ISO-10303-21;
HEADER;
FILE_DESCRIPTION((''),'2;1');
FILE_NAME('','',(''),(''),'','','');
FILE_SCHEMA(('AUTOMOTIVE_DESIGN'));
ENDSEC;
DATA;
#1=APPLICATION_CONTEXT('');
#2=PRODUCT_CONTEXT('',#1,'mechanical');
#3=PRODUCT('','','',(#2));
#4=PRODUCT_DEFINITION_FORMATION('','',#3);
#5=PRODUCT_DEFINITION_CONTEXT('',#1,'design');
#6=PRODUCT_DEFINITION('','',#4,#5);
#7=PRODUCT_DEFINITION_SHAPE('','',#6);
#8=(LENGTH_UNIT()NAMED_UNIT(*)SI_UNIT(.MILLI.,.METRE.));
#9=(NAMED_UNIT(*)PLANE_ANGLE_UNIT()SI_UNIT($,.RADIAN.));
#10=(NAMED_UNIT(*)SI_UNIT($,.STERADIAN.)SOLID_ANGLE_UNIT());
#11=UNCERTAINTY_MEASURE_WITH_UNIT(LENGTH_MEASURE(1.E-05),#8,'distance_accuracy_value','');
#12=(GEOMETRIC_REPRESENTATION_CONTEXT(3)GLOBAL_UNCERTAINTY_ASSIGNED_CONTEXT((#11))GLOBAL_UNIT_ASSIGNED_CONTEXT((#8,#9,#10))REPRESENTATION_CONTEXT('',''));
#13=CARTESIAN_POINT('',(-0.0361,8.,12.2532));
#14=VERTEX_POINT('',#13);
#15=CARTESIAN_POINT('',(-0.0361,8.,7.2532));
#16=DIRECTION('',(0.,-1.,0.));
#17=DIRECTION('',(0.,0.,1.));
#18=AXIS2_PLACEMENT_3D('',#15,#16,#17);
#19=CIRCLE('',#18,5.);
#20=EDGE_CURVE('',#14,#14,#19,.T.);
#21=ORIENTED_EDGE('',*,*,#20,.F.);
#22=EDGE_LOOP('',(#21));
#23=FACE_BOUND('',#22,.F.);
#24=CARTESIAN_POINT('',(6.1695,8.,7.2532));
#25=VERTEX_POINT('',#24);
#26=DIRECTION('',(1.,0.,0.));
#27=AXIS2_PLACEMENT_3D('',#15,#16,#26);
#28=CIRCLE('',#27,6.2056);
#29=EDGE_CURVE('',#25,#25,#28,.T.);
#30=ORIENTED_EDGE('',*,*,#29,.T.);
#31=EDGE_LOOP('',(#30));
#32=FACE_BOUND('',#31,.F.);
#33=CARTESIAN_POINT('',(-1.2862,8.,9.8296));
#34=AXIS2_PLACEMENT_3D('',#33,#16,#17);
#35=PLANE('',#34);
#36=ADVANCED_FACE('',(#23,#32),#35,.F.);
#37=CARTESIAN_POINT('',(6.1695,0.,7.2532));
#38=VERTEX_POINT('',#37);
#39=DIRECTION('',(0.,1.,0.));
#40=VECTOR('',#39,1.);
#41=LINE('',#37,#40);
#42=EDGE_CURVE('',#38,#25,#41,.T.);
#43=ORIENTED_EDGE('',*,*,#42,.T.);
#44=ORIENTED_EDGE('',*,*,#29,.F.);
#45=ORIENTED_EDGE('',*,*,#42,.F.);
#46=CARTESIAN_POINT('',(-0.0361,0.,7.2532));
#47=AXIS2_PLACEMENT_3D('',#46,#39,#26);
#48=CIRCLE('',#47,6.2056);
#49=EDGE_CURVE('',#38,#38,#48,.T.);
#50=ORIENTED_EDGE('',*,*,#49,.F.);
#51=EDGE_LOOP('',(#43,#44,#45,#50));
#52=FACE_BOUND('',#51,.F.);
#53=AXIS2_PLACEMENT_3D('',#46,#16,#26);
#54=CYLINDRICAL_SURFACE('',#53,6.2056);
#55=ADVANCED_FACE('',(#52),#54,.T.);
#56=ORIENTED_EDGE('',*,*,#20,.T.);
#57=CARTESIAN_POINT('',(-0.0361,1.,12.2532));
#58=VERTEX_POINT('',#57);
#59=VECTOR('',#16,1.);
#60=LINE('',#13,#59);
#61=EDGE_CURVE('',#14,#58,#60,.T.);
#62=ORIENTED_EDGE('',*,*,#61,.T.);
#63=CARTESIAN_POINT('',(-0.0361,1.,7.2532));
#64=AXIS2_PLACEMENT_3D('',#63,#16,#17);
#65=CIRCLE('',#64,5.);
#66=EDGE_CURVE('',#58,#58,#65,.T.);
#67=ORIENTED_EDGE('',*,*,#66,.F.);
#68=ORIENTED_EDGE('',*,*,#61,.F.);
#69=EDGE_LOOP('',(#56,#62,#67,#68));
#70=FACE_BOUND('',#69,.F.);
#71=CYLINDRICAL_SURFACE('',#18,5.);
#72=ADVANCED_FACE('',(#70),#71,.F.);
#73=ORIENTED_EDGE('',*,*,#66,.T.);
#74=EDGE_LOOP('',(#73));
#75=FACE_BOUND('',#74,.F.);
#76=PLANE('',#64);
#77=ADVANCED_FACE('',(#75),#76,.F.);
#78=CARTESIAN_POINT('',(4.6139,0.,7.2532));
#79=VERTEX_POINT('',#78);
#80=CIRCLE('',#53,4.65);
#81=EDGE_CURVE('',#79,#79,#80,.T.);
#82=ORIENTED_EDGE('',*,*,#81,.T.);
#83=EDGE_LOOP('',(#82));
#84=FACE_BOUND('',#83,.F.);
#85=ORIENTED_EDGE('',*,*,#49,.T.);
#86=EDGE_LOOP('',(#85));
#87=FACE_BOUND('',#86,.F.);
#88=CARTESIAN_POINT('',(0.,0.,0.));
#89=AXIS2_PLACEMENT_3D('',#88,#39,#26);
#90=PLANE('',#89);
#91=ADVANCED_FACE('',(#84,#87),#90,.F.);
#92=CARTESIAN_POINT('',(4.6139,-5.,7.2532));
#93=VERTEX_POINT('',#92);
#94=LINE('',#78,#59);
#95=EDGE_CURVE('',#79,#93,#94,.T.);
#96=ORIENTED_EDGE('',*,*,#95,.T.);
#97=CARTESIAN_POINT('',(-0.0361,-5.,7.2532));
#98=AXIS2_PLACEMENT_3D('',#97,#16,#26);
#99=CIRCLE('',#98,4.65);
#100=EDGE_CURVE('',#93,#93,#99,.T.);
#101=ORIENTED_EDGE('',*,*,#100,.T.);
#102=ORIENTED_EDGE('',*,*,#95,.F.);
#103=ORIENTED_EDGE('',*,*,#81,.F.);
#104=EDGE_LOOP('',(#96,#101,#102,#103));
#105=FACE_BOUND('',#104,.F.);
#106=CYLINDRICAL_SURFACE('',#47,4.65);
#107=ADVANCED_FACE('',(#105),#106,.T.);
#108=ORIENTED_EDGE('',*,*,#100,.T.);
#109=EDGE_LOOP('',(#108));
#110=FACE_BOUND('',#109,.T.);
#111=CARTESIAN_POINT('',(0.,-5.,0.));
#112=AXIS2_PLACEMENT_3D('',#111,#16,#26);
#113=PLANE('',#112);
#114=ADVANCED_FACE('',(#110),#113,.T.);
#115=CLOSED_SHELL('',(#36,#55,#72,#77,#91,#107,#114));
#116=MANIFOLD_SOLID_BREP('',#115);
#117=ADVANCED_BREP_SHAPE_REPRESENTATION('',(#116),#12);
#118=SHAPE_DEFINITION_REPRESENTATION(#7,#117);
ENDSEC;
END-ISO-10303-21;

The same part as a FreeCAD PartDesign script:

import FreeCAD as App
import Part
import Sketcher

V = App.Vector

doc = App.newDocument("Part")
body = doc.addObject("PartDesign::Body", "Body")

# Sketch on XZ plane
sketch1 = body.newObject("Sketcher::SketchObject", "Sketch")
sketch1.AttachmentSupport = (doc.getObject("XZ_Plane"), [""])
sketch1.MapMode = "FlatFace"
sketch1.addGeometry(Part.Circle(V(-0.0361, 7.2532, 0), V(0, 0, 1), 6.2056), False)
sketch1.addConstraint([
    Sketcher.Constraint("Diameter", 0, 12.4112),
    Sketcher.Constraint("DistanceX", 0, 3, -1, 1, 0.036),
    Sketcher.Constraint("DistanceY", -1, 1, 0, 3, 7.2532),
])
pad1 = body.newObject("PartDesign::Pad", "Pad")
pad1.Profile = sketch1
pad1.Length = 11
pad1.Reversed = True

# Sketch on XZ plane
sketch2 = body.newObject("Sketcher::SketchObject", "Sketch001")
sketch2.AttachmentSupport = (doc.getObject("XZ_Plane"), [""])
sketch2.MapMode = "FlatFace"
sketch2.AttachmentOffset = App.Placement(V(0, 0, -11), App.Rotation())
sketch2.addGeometry(Part.Circle(V(-1.2862, 9.8296, 0), V(0, 0, 1), 9.5), False)
sketch2.addConstraint([
    Sketcher.Constraint("Diameter", 0, 19.0),
    Sketcher.Constraint("DistanceX", 0, 3, -1, 1, 1.2862),
    Sketcher.Constraint("DistanceY", -1, 1, 0, 3, 9.8296),
])
doc.recompute()
hole = body.newObject("PartDesign::Hole", "Hole")
hole.Profile = sketch2
hole.ThreadType = "None"
hole.Diameter = 19
hole.DepthType = "Dimension"
hole.Depth = 3
hole.DrillPoint = "Flat"
hole.Reversed = True

# Sketch on XZ plane
sketch3 = body.newObject("Sketcher::SketchObject", "Sketch002")
sketch3.AttachmentSupport = (doc.getObject("XZ_Plane"), [""])
sketch3.MapMode = "FlatFace"
sketch3.AttachmentOffset = App.Placement(V(0, 0, -8), App.Rotation())
sketch3.addGeometry(Part.Circle(V(-0.0361, 7.2532, 0), V(0, 0, 1), 5), False)
sketch3.addConstraint([
    Sketcher.Constraint("Diameter", 0, 10.0),
    Sketcher.Constraint("DistanceX", 0, 3, -1, 1, 0.036),
    Sketcher.Constraint("DistanceY", -1, 1, 0, 3, 7.2532),
])
doc.recompute()
hole2 = body.newObject("PartDesign::Hole", "Hole001")
hole2.Profile = sketch3
hole2.ThreadType = "None"
hole2.Diameter = 10
hole2.DepthType = "Dimension"
hole2.Depth = 7
hole2.DrillPoint = "Flat"
hole2.Reversed = True

# Sketch on XZ plane
sketch4 = body.newObject("Sketcher::SketchObject", "Sketch003")
sketch4.AttachmentSupport = (doc.getObject("XZ_Plane"), [""])
sketch4.MapMode = "FlatFace"
sketch4.addGeometry(Part.Circle(V(-0.0361, 7.2532, 0), V(0, 0, 1), 4.65), False)
sketch4.addConstraint([
    Sketcher.Constraint("Diameter", 0, 9.3),
    Sketcher.Constraint("DistanceX", 0, 3, -1, 1, 0.036),
    Sketcher.Constraint("DistanceY", -1, 1, 0, 3, 7.2532),
])
pad2 = body.newObject("PartDesign::Pad", "Pad001")
pad2.Profile = sketch4
pad2.Length = 5

doc.recompute()
